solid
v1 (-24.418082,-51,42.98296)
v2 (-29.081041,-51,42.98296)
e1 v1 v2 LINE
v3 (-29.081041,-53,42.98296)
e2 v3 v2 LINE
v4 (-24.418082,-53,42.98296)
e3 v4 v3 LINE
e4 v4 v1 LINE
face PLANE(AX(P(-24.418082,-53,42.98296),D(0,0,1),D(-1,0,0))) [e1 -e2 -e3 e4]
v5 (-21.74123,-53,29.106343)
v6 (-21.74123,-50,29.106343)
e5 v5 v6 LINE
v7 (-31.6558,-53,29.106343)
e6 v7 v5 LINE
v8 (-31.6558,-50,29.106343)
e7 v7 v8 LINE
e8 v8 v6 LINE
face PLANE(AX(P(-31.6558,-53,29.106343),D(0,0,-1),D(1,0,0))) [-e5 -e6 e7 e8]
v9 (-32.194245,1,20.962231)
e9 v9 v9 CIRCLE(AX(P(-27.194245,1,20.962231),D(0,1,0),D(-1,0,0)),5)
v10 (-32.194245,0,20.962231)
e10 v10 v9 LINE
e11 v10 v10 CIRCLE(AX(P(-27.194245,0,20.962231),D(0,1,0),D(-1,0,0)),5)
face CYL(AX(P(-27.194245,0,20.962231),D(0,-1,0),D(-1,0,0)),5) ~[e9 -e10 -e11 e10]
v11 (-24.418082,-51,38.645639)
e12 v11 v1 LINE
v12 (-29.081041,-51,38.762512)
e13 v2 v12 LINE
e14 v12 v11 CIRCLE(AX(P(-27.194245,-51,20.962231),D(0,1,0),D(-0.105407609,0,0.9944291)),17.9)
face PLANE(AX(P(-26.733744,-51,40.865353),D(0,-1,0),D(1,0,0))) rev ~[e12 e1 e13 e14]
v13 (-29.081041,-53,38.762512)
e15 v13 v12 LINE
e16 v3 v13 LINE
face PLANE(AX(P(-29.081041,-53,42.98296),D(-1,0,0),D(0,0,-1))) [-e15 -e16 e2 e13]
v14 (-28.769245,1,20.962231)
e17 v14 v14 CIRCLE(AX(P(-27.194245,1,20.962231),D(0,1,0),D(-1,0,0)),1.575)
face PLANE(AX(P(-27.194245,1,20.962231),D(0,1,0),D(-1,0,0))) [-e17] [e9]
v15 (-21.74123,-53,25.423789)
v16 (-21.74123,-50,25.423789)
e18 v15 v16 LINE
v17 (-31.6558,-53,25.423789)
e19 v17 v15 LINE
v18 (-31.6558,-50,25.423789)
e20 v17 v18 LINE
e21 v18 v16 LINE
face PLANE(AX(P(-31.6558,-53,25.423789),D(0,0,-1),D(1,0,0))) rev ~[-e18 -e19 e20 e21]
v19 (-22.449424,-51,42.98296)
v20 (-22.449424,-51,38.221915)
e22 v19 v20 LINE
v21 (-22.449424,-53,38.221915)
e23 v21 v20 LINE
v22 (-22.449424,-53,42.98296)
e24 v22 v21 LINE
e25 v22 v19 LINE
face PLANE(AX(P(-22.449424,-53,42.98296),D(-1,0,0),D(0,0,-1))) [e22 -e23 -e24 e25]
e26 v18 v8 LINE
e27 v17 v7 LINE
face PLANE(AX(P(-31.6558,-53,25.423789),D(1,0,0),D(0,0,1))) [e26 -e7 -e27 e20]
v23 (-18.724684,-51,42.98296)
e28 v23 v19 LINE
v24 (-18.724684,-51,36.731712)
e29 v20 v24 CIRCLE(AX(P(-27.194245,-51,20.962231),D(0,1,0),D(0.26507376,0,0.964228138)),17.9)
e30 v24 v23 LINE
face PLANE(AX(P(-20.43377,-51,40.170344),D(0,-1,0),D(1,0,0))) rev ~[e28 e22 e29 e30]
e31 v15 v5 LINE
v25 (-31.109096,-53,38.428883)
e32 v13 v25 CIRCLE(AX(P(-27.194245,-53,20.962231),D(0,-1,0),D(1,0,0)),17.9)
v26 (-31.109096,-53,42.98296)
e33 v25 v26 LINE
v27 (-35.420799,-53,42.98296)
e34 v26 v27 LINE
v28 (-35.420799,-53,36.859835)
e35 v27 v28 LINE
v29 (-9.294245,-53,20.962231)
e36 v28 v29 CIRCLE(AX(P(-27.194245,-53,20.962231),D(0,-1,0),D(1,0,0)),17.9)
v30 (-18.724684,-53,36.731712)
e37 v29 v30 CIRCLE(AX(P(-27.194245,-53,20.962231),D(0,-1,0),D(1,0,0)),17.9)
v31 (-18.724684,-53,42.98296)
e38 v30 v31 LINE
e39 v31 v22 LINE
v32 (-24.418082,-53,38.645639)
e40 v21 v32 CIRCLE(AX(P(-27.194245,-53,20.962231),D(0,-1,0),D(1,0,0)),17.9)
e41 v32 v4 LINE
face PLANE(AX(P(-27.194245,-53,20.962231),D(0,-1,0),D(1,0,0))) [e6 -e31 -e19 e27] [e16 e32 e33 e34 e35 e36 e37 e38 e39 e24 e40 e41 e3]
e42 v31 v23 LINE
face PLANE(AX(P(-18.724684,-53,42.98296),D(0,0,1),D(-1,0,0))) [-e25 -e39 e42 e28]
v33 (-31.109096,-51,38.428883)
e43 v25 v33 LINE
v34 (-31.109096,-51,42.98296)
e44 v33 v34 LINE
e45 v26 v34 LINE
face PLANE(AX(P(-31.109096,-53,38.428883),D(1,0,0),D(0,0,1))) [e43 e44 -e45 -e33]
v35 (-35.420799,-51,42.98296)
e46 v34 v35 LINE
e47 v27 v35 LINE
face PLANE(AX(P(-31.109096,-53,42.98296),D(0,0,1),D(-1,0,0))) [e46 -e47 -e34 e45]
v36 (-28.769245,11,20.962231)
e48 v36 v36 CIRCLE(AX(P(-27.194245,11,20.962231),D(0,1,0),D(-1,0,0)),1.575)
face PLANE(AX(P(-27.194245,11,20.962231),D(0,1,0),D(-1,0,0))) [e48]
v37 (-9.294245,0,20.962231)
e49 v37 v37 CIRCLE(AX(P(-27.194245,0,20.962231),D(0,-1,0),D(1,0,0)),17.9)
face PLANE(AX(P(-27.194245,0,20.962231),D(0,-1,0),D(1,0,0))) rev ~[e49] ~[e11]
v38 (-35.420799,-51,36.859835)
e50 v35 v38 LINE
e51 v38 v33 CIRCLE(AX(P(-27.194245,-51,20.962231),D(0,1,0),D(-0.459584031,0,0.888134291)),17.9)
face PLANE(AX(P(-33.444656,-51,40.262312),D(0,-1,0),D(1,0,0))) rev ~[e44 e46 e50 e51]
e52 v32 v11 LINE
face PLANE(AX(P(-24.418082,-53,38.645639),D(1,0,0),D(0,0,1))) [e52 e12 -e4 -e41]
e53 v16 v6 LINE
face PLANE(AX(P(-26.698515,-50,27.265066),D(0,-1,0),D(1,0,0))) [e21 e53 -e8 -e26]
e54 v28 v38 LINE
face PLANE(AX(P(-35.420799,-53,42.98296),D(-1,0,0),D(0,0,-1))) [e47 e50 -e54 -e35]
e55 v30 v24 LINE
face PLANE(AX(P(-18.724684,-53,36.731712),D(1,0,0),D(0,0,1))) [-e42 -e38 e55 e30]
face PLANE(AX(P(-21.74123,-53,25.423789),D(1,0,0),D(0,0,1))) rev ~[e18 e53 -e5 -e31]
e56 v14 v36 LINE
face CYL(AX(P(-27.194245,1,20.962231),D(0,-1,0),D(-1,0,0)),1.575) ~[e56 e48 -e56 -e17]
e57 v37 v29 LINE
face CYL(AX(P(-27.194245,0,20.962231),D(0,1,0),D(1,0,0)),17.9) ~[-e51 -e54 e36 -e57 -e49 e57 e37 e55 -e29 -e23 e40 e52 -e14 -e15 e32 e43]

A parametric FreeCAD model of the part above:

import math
import FreeCAD as App
import Part
import Sketcher
from FreeCAD import Vector
Q = App.Units.Quantity


def add_polygon(sketch, points):
    """Adds a closed chain of lines whose ends are joined by coincident constraints."""
    first, n = sketch.GeometryCount, len(points)
    for a, b in zip(points, points[1:] + points[:1]):
        sketch.addGeometry(Part.LineSegment(App.Vector(*a, 0), App.Vector(*b, 0)), False)
    for i in range(n):
        sketch.addConstraint(Sketcher.Constraint("Coincident", first + i, 2, first + (i + 1) % n, 1))

doc = App.newDocument("Part")
body = doc.addObject("PartDesign::Body", "Body")

# Sketch on XZ plane
sketch1 = body.newObject("Sketcher::SketchObject", "Sketch")
sketch1.AttachmentSupport = (doc.getObject("XZ_Plane"), [""])
sketch1.MapMode = "FlatFace"
sketch1.addGeometry(Part.Circle(Vector(-27, 21, 0), Vector(0, 0, 1), 18), False)
sketch1.addConstraint(Sketcher.Constraint("Diameter", 0, Q("35.8 mm")))
sketch1.addConstraint(Sketcher.Constraint("DistanceY", -1, 1, 0, 3, Q("20.962231 mm")))
sketch1.addConstraint(Sketcher.Constraint("DistanceX", 0, 3, -1, 1, Q("27.194245 mm")))
pad1 = body.newObject("PartDesign::Pad", "Pad")
pad1.Profile = sketch1
pad1.Length = 53

# Sketch on XZ plane
sketch2 = body.newObject("Sketcher::SketchObject", "Sketch001")
sketch2.AttachmentSupport = (doc.getObject("XZ_Plane"), [""])
sketch2.MapMode = "FlatFace"
sketch2.addGeometry(Part.Circle(Vector(-27, 21, 0), Vector(0, 0, 1), 5), False)
sketch2.addConstraint(Sketcher.Constraint("Diameter", 0, Q("10 mm")))
sketch2.addConstraint(Sketcher.Constraint("DistanceY", -1, 1, 0, 3, Q("20.962231 mm")))
sketch2.addConstraint(Sketcher.Constraint("DistanceX", 0, 3, -1, 1, Q("27.194245 mm")))
pad2 = body.newObject("PartDesign::Pad", "Pad001")
pad2.Profile = sketch2
pad2.Length = 1
pad2.Reversed = True

# Sketch on XZ plane
sketch3 = body.newObject("Sketcher::SketchObject", "Sketch002")
sketch3.AttachmentSupport = (doc.getObject("XZ_Plane"), [""])
sketch3.MapMode = "FlatFace"
sketch3.AttachmentOffset = App.Placement(Vector(0, 0, -1), App.Rotation())
sketch3.addGeometry(Part.Circle(Vector(-27.2, 21, 0), Vector(0, 0, 1), 1.6), False)
sketch3.addConstraint(Sketcher.Constraint("Diameter", 0, Q("3.15 mm")))
sketch3.addConstraint(Sketcher.Constraint("DistanceY", -1, 1, 0, 3, Q("20.962231 mm")))
sketch3.addConstraint(Sketcher.Constraint("DistanceX", 0, 3, -1, 1, Q("27.194245 mm")))
pad3 = body.newObject("PartDesign::Pad", "Pad002")
pad3.Profile = sketch3
pad3.Length = 10
pad3.Reversed = True

# Sketch on XZ plane
sketch4 = body.newObject("Sketcher::SketchObject", "Sketch003")
sketch4.AttachmentSupport = (doc.getObject("XZ_Plane"), [""])
sketch4.MapMode = "FlatFace"
sketch4.AttachmentOffset = App.Placement(Vector(0, 0, 53), App.Rotation())
add_polygon(sketch4, [(-31.7, 29.1), (-31.7, 25.4), (-21.7, 25.4), (-21.7, 29.1)])  # lines 0-3
sketch4.addConstraint(Sketcher.Constraint("Vertical", 0))
sketch4.addConstraint(Sketcher.Constraint("Horizontal", 1))
sketch4.addConstraint(Sketcher.Constraint("Vertical", 2))
sketch4.addConstraint(Sketcher.Constraint("Horizontal", 3))
sketch4.addConstraint(Sketcher.Constraint("DistanceX", 1, 1, 1, 2, Q("9.91457 mm")))
sketch4.addConstraint(Sketcher.Constraint("DistanceX", 0, 2, -1, 1, Q("31.6558 mm")))
sketch4.addConstraint(Sketcher.Constraint("DistanceY", 0, 2, 0, 1, Q("3.682554 mm")))
sketch4.addConstraint(Sketcher.Constraint("DistanceY", -1, 1, 0, 2, Q("25.423789 mm")))
pocket1 = body.newObject("PartDesign::Pocket", "Pocket")
pocket1.Profile = sketch4
pocket1.Length = 3

# Sketch on XZ plane
sketch5 = body.newObject("Sketcher::SketchObject", "Sketch004")
sketch5.AttachmentSupport = (doc.getObject("XZ_Plane"), [""])
sketch5.MapMode = "FlatFace"
sketch5.AttachmentOffset = App.Placement(Vector(0, 0, 53), App.Rotation())
sketch5.addGeometry(Part.LineSegment(Vector(-35.4, 43, 0), Vector(-35.4, 36.9, 0)), False)
sketch5.addGeometry(Part.ArcOfCircle(Part.Circle(Vector(-27.2, 21, 0), Vector(0, 0, 1), 17.9), math.radians(102.63), math.radians(117.36)), False)
sketch5.addGeometry(Part.LineSegment(Vector(-31.1, 38.4, 0), Vector(-31.1, 43, 0)), False)
sketch5.addGeometry(Part.LineSegment(Vector(-31.1, 43, 0), Vector(-35.4, 43, 0)), False)
sketch5.addGeometry(Part.LineSegment(Vector(-29.1, 43, 0), Vector(-29.1, 38.8, 0)), False)
sketch5.addGeometry(Part.ArcOfCircle(Part.Circle(Vector(-27.2, 21, 0), Vector(0, 0, 1), 17.9), math.radians(81.08), math.radians(96.05)), False)
sketch5.addGeometry(Part.LineSegment(Vector(-24.4, 38.6, 0), Vector(-24.4, 43, 0)), False)
sketch5.addGeometry(Part.LineSegment(Vector(-24.4, 43, 0), Vector(-29.1, 43, 0)), False)
sketch5.addGeometry(Part.ArcOfCircle(Part.Circle(Vector(-27.2, 21, 0), Vector(0, 0, 1), 17.9), math.radians(61.76), math.radians(74.63)), False)
sketch5.addGeometry(Part.LineSegment(Vector(-18.7, 36.7, 0), Vector(-18.7, 43, 0)), False)
sketch5.addGeometry(Part.LineSegment(Vector(-18.7, 43, 0), Vector(-22.4, 43, 0)), False)
sketch5.addGeometry(Part.LineSegment(Vector(-22.4, 43, 0), Vector(-22.4, 38.2, 0)), False)
sketch5.addConstraint(Sketcher.Constraint("Coincident", 0, 2, 1, 2))
sketch5.addConstraint(Sketcher.Constraint("Coincident", 1, 1, 2, 1))
sketch5.addConstraint(Sketcher.Constraint("Coincident", 2, 2, 3, 1))
sketch5.addConstraint(Sketcher.Constraint("Coincident", 3, 2, 0, 1))
sketch5.addConstraint(Sketcher.Constraint("Coincident", 4, 2, 5, 2))
sketch5.addConstraint(Sketcher.Constraint("Coincident", 5, 1, 6, 1))
sketch5.addConstraint(Sketcher.Constraint("Coincident", 6, 2, 7, 1))
sketch5.addConstraint(Sketcher.Constraint("Coincident", 7, 2, 4, 1))
sketch5.addConstraint(Sketcher.Constraint("Coincident", 8, 1, 9, 1))
sketch5.addConstraint(Sketcher.Constraint("Coincident", 9, 2, 10, 1))
sketch5.addConstraint(Sketcher.Constraint("Coincident", 10, 2, 11, 1))
sketch5.addConstraint(Sketcher.Constraint("Coincident", 11, 2, 8, 2))
sketch5.addConstraint(Sketcher.Constraint("Vertical", 0))
sketch5.addConstraint(Sketcher.Constraint("Vertical", 2))
sketch5.addConstraint(Sketcher.Constraint("Horizontal", 3))
sketch5.addConstraint(Sketcher.Constraint("Vertical", 4))
sketch5.addConstraint(Sketcher.Constraint("Vertical", 6))
sketch5.addConstraint(Sketcher.Constraint("Horizontal", 7))
sketch5.addConstraint(Sketcher.Constraint("Vertical", 9))
sketch5.addConstraint(Sketcher.Constraint("Horizontal", 10))
sketch5.addConstraint(Sketcher.Constraint("Vertical", 11))
sketch5.addConstraint(Sketcher.Constraint("Coincident", 5, 3, 1, 3))
sketch5.addConstraint(Sketcher.Constraint("Coincident", 8, 3, 1, 3))
sketch5.addConstraint(Sketcher.Constraint("Equal", 1, 5))
sketch5.addConstraint(Sketcher.Constraint("Equal", 5, 8))
sketch5.addConstraint(Sketcher.Constraint("Horizontal", 3, 2, 6, 2))
sketch5.addConstraint(Sketcher.Constraint("Horizontal", 7, 2, 9, 2))
sketch5.addConstraint(Sketcher.Constraint("Radius", 1, Q("17.9 mm")))
sketch5.addConstraint(Sketcher.Constraint("DistanceX", 7, 2, 7, 1, Q("4.662959 mm")))
sketch5.addConstraint(Sketcher.Constraint("DistanceX", 10, 2, 10, 1, Q("3.724741 mm")))
sketch5.addConstraint(Sketcher.Constraint("DistanceY", 6, 1, 6, 2, Q("4.337321 mm")))
sketch5.addConstraint(Sketcher.Constraint("DistanceX", 0, 2, -1, 1, Q("35.420799 mm")))
sketch5.addConstraint(Sketcher.Constraint("DistanceX", 5, 1, 8, 1, Q("5.693398 mm")))
sketch5.addConstraint(Sketcher.Constraint("DistanceY", 8, 1, 4, 2, Q("2.0308 mm")))
sketch5.addConstraint(Sketcher.Constraint("DistanceX", 3, 2, 3, 1, Q("4.311702 mm")))
sketch5.addConstraint(Sketcher.Constraint("DistanceY", 0, 2, 0, 1, Q("6.123125 mm")))
sketch5.addConstraint(Sketcher.Constraint("DistanceY", -1, 1, 1, 3, Q("20.962231 mm")))
pad4 = body.newObject("PartDesign::Pad", "Pad003")
pad4.Profile = sketch5
pad4.Length = 2
pad4.Reversed = True

doc.recompute()
